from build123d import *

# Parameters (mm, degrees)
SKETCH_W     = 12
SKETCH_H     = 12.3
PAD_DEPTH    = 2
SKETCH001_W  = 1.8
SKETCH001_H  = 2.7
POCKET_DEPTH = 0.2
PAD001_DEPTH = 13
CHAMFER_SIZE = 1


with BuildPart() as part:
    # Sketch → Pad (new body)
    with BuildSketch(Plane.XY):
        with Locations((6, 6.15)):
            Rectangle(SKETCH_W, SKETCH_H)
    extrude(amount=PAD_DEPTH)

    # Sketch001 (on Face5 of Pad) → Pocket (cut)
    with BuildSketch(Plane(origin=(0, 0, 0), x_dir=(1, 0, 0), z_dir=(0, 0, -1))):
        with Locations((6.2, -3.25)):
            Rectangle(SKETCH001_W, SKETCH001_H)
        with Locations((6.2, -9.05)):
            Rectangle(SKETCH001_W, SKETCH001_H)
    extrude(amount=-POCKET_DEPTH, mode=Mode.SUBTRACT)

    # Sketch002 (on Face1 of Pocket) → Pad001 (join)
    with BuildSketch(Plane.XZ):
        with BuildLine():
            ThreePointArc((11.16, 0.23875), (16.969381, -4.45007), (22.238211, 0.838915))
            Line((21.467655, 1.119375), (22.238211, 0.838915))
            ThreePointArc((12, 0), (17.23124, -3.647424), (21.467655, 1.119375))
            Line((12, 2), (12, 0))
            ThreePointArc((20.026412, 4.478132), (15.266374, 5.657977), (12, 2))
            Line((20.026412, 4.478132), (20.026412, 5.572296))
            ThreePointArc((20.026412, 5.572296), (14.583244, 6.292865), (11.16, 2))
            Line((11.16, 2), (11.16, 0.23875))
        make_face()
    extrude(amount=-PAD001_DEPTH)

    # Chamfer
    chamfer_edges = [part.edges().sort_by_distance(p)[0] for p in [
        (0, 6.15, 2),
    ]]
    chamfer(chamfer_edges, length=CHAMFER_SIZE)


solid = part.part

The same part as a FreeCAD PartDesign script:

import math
import FreeCAD as App
import Part
import Sketcher
from FreeCAD import Vector


def edges_at(feature, points):
    """Names of the edges that pass closest to the given points."""
    edges = feature.Shape.Edges
    near = lambda p: min(range(len(edges)), key=lambda i: edges[i].distToShape(Part.Vertex(*p))[0])
    return sorted({f"Edge{near(p) + 1}" for p in points})


def add_polygon(sketch, points):
    """Adds a closed chain of lines whose ends are joined by coincident constraints."""
    first, n = sketch.GeometryCount, len(points)
    for a, b in zip(points, points[1:] + points[:1]):
        sketch.addGeometry(Part.LineSegment(App.Vector(*a, 0), App.Vector(*b, 0)), False)
    for i in range(n):
        sketch.addConstraint(Sketcher.Constraint("Coincident", first + i, 2, first + (i + 1) % n, 1))

doc = App.newDocument("Part")
body = doc.addObject("PartDesign::Body", "Body")

# Sketch on XY plane
sketch1 = doc.addObject("Sketcher::SketchObject", "Sketch")
body.addObject(sketch1)
sketch1.AttachmentSupport = (doc.XY_Plane, [""])
sketch1.MapMode = "FlatFace"
add_polygon(sketch1, [(0, 12), (0, 0), (12, 0), (12, 12)])  # lines 0-3
sketch1.addConstraint([
    Sketcher.Constraint("Vertical", 0),
    Sketcher.Constraint("Horizontal", 1),
    Sketcher.Constraint("Vertical", 2),
    Sketcher.Constraint("Horizontal", 3),
    Sketcher.Constraint("Coincident", 0, 2, -1, 1),
    Sketcher.Constraint("DistanceX", 1, 1, 1, 2, 12.0),
    Sketcher.Constraint("DistanceY", 0, 2, 0, 1, 12.3),
])
pad1 = doc.addObject("PartDesign::Pad", "Pad")
body.addObject(pad1)
pad1.Profile = sketch1
pad1.Length = 2

# Sketch on XY plane
sketch2 = doc.addObject("Sketcher::SketchObject", "Sketch001")
body.addObject(sketch2)
sketch2.AttachmentSupport = (doc.XY_Plane, [""])
sketch2.MapMode = "FlatFace"
add_polygon(sketch2, [(5.3, 1.9), (5.3, 4.6), (7.1, 4.6), (7.1, 1.9)])  # lines 0-3
add_polygon(sketch2, [(5.3, 7.7), (5.3, 10.4), (7.1, 10.4), (7.1, 7.7)])  # lines 4-7
sketch2.addConstraint([
    Sketcher.Constraint("Vertical", 0),
    Sketcher.Constraint("Horizontal", 1),
    Sketcher.Constraint("Vertical", 2),
    Sketcher.Constraint("Horizontal", 3),
    Sketcher.Constraint("Vertical", 4),
    Sketcher.Constraint("Horizontal", 5),
    Sketcher.Constraint("Vertical", 6),
    Sketcher.Constraint("Horizontal", 7),
    Sketcher.Constraint("Vertical", 3, 2, 4, 2),
    Sketcher.Constraint("Vertical", 2, 2, 5, 2),
    Sketcher.Constraint("Equal", 2, 4),
    Sketcher.Constraint("DistanceX", 1, 1, 1, 2, 1.8),
    Sketcher.Constraint("DistanceY", 0, 1, 0, 2, 2.7),
    Sketcher.Constraint("DistanceX", -1, 1, 0, 2, 5.3),
    Sketcher.Constraint("DistanceY", -1, 1, 0, 2, 4.6),
    Sketcher.Constraint("DistanceY", -1, 1, 4, 2, 10.4),
])
pocket1 = doc.addObject("PartDesign::Pocket", "Pocket")
body.addObject(pocket1)
pocket1.Profile = sketch2
pocket1.Length = 0.2
pocket1.Reversed = True

# Sketch on XZ plane
sketch3 = doc.addObject("Sketcher::SketchObject", "Sketch002")
body.addObject(sketch3)
sketch3.AttachmentSupport = (doc.XZ_Plane, [""])
sketch3.MapMode = "FlatFace"
sketch3.addGeometry([
    Part.ArcOfCircle(Part.Circle(Vector(16.7, 1.1, 0), Vector(0, 0, 1), 5.6), math.radians(-171), math.radians(-3)),  # 0
    Part.LineSegment(Vector(22.2, 0.8, 0), Vector(21.5, 1.1, 0)),  # 1
    Part.ArcOfCircle(Part.Circle(Vector(16.7, 1.1, 0), Vector(0, 0, 1), 4.8), math.radians(-167), math.radians(0)),  # 2
    Part.LineSegment(Vector(12, 0, 0), Vector(12, 2, 0)),  # 3
    Part.ArcOfCircle(Part.Circle(Vector(16.7, 1.1, 0), Vector(0, 0, 1), 4.8), math.radians(45), math.radians(169)),  # 4
    Part.LineSegment(Vector(20, 4.5, 0), Vector(20, 5.6, 0)),  # 5
    Part.ArcOfCircle(Part.Circle(Vector(16.7, 1.1, 0), Vector(0, 0, 1), 5.6), math.radians(53), math.radians(171)),  # 6
    Part.LineSegment(Vector(11.2, 2, 0), Vector(11.2, 0.2, 0)),  # 7
], False)
sketch3.addConstraint([
    Sketcher.Constraint("Coincident", 0, 2, 1, 1),
    Sketcher.Constraint("Coincident", 1, 2, 2, 2),
    Sketcher.Constraint("Coincident", 2, 1, 3, 1),
    Sketcher.Constraint("Coincident", 3, 2, 4, 2),
    Sketcher.Constraint("Coincident", 4, 1, 5, 1),
    Sketcher.Constraint("Coincident", 5, 2, 6, 1),
    Sketcher.Constraint("Coincident", 6, 2, 7, 1),
    Sketcher.Constraint("Coincident", 7, 2, 0, 1),
    Sketcher.Constraint("Vertical", 3),
    Sketcher.Constraint("Vertical", 5),
    Sketcher.Constraint("Vertical", 7),
    Sketcher.Constraint("Coincident", 2, 3, 0, 3),
    Sketcher.Constraint("Coincident", 4, 3, 0, 3),
    Sketcher.Constraint("Coincident", 6, 3, 0, 3),
    Sketcher.Constraint("Equal", 0, 6),
    Sketcher.Constraint("PointOnObject", 2, 1, -1),
    Sketcher.Constraint("Horizontal", 6, 3, 1, 2),
    Sketcher.Constraint("Horizontal", 3, 2, 6, 2),
    Sketcher.Constraint("Radius", 2, 4.8),
    Sketcher.Constraint("DistanceY", 3, 1, 3, 2, 2.0),
    Sketcher.Constraint("Radius", 4, 4.75),
    Sketcher.Constraint("DistanceX", -1, 1, 2, 1, 12.0),
    Sketcher.Constraint("DistanceX", -1, 1, 6, 2, 11.16),
    Sketcher.Constraint("DistanceX", 4, 1, 0, 2, 2.211799),
    Sketcher.Constraint("Distance", 1, 0.820009),
])
pad2 = doc.addObject("PartDesign::Pad", "Pad001")
body.addObject(pad2)
pad2.Profile = sketch3
pad2.Length = 13
pad2.Reversed = True
doc.recompute()

chamfer = doc.addObject("PartDesign::Chamfer", "Chamfer")
body.addObject(chamfer)
chamfer.Base = (pad2, edges_at(pad2, [(0, 6.15, 2)]))
chamfer.Size = 1

doc.recompute()
